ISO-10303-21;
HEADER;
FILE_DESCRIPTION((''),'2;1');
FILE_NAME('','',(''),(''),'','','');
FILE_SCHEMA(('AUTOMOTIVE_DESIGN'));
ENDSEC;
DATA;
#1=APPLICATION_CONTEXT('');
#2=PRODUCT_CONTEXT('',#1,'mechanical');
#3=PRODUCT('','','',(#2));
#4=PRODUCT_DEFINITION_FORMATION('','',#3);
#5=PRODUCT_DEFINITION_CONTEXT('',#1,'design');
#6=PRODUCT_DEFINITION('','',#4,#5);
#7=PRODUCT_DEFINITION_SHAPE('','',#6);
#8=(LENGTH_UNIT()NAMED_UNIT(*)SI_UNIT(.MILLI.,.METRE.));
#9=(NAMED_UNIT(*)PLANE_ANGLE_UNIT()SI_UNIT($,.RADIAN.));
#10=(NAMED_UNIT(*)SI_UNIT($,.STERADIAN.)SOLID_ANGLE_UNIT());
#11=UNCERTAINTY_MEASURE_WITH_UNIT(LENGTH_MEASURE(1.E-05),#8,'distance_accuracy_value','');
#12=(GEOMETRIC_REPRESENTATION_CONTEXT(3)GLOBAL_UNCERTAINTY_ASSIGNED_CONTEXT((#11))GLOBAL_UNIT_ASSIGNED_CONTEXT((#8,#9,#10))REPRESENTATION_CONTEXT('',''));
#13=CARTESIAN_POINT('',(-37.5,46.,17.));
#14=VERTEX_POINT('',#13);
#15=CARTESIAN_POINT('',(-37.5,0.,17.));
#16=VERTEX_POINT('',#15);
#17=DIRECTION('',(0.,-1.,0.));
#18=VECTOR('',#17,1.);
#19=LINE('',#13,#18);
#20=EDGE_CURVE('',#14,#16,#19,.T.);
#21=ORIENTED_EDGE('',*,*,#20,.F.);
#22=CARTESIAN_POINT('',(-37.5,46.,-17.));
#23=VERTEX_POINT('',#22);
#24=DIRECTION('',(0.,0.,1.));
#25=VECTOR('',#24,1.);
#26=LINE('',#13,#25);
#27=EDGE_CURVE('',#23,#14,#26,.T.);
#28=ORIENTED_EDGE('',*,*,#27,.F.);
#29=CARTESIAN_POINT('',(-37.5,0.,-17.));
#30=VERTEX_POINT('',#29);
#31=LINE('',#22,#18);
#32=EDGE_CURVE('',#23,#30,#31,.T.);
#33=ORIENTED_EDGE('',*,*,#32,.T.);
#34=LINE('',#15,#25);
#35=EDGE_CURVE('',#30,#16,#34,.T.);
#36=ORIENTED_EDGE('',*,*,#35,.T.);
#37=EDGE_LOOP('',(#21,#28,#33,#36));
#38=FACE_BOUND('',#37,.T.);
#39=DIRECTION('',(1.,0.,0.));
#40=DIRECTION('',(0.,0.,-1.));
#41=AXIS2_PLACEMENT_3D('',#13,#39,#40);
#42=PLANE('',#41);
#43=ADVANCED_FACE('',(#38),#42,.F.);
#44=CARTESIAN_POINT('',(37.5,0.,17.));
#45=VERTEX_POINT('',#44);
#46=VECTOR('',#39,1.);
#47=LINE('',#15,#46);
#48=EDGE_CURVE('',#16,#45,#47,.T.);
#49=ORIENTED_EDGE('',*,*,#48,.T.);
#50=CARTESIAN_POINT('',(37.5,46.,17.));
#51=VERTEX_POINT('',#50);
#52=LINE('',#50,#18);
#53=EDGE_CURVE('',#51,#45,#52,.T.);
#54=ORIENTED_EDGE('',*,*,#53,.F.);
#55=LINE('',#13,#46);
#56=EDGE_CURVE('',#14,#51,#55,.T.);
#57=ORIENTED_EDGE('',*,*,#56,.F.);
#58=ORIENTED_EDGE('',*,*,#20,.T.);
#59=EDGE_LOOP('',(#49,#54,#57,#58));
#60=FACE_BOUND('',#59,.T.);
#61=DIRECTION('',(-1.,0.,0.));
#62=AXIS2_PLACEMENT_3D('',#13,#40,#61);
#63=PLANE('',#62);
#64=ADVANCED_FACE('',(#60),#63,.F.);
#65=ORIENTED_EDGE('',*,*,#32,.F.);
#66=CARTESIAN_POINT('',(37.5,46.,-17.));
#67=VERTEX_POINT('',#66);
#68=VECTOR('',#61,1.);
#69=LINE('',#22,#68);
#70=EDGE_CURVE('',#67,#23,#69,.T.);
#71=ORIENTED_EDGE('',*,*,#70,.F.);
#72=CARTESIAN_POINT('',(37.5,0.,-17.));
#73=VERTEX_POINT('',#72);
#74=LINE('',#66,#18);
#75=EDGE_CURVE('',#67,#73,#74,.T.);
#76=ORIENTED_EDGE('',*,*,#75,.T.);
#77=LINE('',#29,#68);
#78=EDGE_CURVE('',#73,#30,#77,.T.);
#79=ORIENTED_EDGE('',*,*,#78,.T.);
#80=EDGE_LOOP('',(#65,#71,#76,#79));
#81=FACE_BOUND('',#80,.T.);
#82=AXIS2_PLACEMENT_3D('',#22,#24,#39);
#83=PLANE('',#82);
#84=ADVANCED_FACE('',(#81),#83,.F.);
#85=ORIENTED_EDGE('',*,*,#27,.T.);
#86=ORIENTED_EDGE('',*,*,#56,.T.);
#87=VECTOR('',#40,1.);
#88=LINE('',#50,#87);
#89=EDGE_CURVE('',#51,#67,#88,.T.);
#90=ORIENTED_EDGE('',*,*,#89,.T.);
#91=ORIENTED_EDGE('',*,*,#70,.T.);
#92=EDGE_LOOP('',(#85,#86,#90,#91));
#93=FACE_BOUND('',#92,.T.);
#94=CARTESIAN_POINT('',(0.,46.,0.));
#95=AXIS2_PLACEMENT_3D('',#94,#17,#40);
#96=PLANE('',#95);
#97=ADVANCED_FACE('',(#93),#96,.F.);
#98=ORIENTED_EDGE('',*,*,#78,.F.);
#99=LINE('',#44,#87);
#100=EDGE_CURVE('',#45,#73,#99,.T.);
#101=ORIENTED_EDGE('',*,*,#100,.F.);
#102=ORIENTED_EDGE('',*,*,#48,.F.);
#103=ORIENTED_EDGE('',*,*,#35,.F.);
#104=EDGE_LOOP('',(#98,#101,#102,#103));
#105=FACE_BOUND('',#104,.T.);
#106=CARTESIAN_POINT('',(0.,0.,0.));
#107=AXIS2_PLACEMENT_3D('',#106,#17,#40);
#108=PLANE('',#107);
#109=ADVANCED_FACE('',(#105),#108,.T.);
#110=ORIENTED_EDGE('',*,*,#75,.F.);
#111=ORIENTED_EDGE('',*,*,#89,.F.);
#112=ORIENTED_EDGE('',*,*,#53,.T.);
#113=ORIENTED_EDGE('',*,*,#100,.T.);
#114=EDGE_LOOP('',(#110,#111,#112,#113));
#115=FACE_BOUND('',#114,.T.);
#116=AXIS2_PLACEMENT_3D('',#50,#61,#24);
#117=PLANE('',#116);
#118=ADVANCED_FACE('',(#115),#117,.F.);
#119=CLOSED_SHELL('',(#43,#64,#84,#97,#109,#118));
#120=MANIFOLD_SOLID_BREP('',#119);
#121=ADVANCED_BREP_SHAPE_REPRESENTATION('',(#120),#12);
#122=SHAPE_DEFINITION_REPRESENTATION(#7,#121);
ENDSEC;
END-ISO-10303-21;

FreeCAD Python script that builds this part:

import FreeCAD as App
import Part
import Sketcher
from FreeCAD import Vector

doc = App.newDocument("Part")
body = doc.addObject("PartDesign::Body", "Body")

# Sketch on XZ plane
sketch1 = body.newObject("Sketcher::SketchObject", "Sketch")
sketch1.AttachmentSupport = (doc.getObject("XZ_Plane"), [""])
sketch1.MapMode = "FlatFace"
sketch1.addGeometry([
    Part.LineSegment(Vector(-38, -17, 0), Vector(-38, 17, 0)),
    Part.LineSegment(Vector(-38, 17, 0), Vector(38, 17, 0)),
    Part.LineSegment(Vector(38, 17, 0), Vector(38, -17, 0)),
    Part.LineSegment(Vector(38, -17, 0), Vector(-38, -17, 0)),
], False)
sketch1.addConstraint([
    Sketcher.Constraint("Coincident", 0, 2, 1, 1),
    Sketcher.Constraint("Coincident", 1, 2, 2, 1),
    Sketcher.Constraint("Coincident", 2, 2, 3, 1),
    Sketcher.Constraint("Coincident", 3, 2, 0, 1),
    Sketcher.Constraint("Vertical", 0),
    Sketcher.Constraint("Horizontal", 1),
    Sketcher.Constraint("Vertical", 2),
    Sketcher.Constraint("Horizontal", 3),
    Sketcher.Constraint("Symmetric", 0, 2, 2, 2, -1, 1),
    Sketcher.Constraint("DistanceX", 1, 1, 1, 2, 75.0),
    Sketcher.Constraint("DistanceY", 0, 1, 0, 2, 34.0),
])
pad1 = body.newObject("PartDesign::Pad", "Pad")
pad1.Profile = sketch1
pad1.Length = 46
pad1.Reversed = True

doc.recompute()
